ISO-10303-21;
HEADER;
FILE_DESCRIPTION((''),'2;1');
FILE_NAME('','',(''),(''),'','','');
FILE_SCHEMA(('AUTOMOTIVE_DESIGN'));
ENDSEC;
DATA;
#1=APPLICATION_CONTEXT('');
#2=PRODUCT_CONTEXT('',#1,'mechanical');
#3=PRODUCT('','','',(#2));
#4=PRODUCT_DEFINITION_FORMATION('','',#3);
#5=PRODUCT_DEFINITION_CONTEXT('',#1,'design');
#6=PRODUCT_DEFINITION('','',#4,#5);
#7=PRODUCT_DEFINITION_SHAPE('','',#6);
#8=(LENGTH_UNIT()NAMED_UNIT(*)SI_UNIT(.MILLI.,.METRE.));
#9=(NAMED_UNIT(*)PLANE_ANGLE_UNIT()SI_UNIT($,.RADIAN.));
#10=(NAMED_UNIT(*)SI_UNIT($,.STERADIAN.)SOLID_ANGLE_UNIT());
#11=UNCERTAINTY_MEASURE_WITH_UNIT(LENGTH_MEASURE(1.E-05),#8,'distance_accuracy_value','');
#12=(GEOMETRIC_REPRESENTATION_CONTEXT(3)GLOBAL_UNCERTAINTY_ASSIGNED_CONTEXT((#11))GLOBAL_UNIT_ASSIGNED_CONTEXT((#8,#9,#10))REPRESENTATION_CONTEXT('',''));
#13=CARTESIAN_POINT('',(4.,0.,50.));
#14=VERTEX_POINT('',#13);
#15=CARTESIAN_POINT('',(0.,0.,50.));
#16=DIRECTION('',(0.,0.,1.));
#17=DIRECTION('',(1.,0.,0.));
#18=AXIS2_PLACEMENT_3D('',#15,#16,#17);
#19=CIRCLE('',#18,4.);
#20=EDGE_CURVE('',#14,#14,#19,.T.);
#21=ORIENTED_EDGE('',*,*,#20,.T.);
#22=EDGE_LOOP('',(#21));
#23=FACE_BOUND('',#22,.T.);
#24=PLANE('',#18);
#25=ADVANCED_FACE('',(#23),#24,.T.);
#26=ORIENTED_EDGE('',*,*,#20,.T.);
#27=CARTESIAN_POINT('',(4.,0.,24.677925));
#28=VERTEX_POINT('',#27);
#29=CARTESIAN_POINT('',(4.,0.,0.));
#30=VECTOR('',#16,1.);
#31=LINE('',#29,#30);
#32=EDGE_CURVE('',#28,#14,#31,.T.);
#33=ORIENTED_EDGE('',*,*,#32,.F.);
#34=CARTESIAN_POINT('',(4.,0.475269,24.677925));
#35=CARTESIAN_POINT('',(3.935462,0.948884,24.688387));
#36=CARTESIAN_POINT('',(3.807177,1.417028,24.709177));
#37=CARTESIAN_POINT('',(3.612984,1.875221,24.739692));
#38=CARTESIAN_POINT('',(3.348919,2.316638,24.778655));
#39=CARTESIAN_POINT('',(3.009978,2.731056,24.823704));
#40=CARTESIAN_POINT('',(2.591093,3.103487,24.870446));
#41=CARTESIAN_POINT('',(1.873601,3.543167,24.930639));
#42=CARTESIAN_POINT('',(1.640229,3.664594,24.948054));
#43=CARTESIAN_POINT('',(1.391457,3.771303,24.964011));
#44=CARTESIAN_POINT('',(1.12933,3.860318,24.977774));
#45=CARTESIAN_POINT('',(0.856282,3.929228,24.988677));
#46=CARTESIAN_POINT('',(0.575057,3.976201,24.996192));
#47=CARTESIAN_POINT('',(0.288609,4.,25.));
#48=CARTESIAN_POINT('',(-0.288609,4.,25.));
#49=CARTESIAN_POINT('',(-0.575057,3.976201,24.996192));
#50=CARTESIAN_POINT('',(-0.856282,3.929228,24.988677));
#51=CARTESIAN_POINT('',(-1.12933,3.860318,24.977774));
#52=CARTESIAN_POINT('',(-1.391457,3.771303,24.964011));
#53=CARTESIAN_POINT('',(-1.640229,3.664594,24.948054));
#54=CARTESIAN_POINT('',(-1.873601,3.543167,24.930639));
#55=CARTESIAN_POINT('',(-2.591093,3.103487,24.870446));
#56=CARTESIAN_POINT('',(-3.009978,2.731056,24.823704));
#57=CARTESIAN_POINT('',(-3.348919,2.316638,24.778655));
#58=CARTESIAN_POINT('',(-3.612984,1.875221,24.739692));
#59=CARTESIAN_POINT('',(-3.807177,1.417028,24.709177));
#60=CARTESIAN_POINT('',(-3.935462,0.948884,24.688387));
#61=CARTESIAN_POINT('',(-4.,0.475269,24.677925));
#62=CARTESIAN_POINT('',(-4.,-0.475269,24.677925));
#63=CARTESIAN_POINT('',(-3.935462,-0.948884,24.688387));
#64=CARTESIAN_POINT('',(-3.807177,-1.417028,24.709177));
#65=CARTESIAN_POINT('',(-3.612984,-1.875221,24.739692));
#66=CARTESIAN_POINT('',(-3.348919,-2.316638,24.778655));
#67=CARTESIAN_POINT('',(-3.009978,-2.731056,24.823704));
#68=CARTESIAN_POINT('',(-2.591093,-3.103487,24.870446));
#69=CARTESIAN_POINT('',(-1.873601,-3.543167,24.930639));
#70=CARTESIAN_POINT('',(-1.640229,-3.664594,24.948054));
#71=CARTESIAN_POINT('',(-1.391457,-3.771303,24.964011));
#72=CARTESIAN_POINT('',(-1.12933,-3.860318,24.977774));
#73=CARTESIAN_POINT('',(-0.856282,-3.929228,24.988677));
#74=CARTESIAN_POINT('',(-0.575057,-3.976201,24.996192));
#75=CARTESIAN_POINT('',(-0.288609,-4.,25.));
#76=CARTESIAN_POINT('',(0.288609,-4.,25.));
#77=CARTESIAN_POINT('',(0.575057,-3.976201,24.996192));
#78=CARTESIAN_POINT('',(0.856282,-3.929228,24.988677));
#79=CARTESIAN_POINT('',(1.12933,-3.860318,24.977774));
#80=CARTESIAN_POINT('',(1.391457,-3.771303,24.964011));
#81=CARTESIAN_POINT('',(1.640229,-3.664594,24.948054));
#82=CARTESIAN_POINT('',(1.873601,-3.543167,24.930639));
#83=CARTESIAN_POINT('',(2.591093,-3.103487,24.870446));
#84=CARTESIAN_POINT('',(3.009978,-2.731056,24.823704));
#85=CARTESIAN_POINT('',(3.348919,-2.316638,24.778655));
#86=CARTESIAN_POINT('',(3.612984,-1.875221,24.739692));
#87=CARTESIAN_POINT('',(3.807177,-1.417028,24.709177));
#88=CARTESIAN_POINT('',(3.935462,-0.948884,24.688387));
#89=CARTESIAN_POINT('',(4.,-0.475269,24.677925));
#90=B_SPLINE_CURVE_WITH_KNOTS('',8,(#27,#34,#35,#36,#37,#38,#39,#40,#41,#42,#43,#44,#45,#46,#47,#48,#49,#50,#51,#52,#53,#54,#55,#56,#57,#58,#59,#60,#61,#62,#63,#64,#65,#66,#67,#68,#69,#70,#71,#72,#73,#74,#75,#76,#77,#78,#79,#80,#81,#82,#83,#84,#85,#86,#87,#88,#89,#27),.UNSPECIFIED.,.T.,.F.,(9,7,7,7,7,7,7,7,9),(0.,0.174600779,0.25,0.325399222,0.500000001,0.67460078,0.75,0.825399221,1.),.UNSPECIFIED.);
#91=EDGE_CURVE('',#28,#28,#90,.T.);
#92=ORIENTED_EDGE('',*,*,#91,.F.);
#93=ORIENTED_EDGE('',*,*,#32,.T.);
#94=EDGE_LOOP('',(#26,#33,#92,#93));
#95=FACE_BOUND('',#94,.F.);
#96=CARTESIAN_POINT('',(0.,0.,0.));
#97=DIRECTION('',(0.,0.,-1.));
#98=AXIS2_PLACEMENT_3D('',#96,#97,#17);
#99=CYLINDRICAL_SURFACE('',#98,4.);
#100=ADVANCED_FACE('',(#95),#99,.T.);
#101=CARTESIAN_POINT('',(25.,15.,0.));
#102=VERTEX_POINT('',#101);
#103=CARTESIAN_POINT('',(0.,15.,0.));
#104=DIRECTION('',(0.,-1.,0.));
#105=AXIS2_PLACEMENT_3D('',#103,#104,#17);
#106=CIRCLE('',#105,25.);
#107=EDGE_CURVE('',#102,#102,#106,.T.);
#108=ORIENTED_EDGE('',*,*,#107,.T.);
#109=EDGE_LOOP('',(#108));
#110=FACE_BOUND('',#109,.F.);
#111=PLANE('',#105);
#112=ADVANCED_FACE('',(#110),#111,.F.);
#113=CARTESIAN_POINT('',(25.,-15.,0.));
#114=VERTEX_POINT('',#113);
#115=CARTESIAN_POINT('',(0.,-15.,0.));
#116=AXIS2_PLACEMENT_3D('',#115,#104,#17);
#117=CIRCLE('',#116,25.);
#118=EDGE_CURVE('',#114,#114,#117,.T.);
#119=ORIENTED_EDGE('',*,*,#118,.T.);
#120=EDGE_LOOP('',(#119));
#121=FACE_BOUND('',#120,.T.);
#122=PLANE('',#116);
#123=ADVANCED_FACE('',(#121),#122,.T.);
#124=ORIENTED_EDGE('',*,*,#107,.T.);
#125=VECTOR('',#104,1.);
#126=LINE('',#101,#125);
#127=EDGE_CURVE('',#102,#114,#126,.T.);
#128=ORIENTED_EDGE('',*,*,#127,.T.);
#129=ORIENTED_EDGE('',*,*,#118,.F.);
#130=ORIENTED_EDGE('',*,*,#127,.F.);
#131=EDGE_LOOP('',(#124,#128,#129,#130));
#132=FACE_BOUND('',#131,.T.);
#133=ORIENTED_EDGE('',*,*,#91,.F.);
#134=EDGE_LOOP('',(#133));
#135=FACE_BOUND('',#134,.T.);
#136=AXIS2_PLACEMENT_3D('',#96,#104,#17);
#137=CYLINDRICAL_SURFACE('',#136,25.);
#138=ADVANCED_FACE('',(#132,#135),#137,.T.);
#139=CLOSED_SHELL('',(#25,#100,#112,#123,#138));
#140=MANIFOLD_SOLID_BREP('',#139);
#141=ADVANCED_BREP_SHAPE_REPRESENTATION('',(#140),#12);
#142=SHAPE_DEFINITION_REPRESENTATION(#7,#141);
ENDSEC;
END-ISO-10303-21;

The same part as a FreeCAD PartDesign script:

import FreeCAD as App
import Part
import Sketcher

V = App.Vector

doc = App.newDocument("Part")
body = doc.addObject("PartDesign::Body", "Body")

# Sketch on XZ plane
sketch1 = doc.addObject("Sketcher::SketchObject", "Sketch")
body.addObject(sketch1)
sketch1.AttachmentSupport = (doc.XZ_Plane, [""])
sketch1.MapMode = "FlatFace"
sketch1.addGeometry(Part.Circle(V(0, 0, 0), V(0, 0, 1), 25), False)
sketch1.addConstraint([
    Sketcher.Constraint("Coincident", 0, 3, -1, 1),
    Sketcher.Constraint("Diameter", 0, 50.0),
])
pad1 = doc.addObject("PartDesign::Pad", "Pad")
body.addObject(pad1)
pad1.Profile = sketch1
pad1.Type = "TwoLengths"
pad1.Length = 15
pad1.Length2 = 15

# Sketch on XY plane
sketch2 = doc.addObject("Sketcher::SketchObject", "Sketch001")
body.addObject(sketch2)
sketch2.AttachmentSupport = (doc.XY_Plane, [""])
sketch2.MapMode = "FlatFace"
sketch2.addGeometry(Part.Circle(V(0, 0, 0), V(0, 0, 1), 4), False)
sketch2.addConstraint([
    Sketcher.Constraint("Coincident", 0, 3, -1, 1),
    Sketcher.Constraint("Diameter", 0, 8.0),
])
pad2 = doc.addObject("PartDesign::Pad", "Pad001")
body.addObject(pad2)
pad2.Profile = sketch2
pad2.Length = 50

doc.recompute()
